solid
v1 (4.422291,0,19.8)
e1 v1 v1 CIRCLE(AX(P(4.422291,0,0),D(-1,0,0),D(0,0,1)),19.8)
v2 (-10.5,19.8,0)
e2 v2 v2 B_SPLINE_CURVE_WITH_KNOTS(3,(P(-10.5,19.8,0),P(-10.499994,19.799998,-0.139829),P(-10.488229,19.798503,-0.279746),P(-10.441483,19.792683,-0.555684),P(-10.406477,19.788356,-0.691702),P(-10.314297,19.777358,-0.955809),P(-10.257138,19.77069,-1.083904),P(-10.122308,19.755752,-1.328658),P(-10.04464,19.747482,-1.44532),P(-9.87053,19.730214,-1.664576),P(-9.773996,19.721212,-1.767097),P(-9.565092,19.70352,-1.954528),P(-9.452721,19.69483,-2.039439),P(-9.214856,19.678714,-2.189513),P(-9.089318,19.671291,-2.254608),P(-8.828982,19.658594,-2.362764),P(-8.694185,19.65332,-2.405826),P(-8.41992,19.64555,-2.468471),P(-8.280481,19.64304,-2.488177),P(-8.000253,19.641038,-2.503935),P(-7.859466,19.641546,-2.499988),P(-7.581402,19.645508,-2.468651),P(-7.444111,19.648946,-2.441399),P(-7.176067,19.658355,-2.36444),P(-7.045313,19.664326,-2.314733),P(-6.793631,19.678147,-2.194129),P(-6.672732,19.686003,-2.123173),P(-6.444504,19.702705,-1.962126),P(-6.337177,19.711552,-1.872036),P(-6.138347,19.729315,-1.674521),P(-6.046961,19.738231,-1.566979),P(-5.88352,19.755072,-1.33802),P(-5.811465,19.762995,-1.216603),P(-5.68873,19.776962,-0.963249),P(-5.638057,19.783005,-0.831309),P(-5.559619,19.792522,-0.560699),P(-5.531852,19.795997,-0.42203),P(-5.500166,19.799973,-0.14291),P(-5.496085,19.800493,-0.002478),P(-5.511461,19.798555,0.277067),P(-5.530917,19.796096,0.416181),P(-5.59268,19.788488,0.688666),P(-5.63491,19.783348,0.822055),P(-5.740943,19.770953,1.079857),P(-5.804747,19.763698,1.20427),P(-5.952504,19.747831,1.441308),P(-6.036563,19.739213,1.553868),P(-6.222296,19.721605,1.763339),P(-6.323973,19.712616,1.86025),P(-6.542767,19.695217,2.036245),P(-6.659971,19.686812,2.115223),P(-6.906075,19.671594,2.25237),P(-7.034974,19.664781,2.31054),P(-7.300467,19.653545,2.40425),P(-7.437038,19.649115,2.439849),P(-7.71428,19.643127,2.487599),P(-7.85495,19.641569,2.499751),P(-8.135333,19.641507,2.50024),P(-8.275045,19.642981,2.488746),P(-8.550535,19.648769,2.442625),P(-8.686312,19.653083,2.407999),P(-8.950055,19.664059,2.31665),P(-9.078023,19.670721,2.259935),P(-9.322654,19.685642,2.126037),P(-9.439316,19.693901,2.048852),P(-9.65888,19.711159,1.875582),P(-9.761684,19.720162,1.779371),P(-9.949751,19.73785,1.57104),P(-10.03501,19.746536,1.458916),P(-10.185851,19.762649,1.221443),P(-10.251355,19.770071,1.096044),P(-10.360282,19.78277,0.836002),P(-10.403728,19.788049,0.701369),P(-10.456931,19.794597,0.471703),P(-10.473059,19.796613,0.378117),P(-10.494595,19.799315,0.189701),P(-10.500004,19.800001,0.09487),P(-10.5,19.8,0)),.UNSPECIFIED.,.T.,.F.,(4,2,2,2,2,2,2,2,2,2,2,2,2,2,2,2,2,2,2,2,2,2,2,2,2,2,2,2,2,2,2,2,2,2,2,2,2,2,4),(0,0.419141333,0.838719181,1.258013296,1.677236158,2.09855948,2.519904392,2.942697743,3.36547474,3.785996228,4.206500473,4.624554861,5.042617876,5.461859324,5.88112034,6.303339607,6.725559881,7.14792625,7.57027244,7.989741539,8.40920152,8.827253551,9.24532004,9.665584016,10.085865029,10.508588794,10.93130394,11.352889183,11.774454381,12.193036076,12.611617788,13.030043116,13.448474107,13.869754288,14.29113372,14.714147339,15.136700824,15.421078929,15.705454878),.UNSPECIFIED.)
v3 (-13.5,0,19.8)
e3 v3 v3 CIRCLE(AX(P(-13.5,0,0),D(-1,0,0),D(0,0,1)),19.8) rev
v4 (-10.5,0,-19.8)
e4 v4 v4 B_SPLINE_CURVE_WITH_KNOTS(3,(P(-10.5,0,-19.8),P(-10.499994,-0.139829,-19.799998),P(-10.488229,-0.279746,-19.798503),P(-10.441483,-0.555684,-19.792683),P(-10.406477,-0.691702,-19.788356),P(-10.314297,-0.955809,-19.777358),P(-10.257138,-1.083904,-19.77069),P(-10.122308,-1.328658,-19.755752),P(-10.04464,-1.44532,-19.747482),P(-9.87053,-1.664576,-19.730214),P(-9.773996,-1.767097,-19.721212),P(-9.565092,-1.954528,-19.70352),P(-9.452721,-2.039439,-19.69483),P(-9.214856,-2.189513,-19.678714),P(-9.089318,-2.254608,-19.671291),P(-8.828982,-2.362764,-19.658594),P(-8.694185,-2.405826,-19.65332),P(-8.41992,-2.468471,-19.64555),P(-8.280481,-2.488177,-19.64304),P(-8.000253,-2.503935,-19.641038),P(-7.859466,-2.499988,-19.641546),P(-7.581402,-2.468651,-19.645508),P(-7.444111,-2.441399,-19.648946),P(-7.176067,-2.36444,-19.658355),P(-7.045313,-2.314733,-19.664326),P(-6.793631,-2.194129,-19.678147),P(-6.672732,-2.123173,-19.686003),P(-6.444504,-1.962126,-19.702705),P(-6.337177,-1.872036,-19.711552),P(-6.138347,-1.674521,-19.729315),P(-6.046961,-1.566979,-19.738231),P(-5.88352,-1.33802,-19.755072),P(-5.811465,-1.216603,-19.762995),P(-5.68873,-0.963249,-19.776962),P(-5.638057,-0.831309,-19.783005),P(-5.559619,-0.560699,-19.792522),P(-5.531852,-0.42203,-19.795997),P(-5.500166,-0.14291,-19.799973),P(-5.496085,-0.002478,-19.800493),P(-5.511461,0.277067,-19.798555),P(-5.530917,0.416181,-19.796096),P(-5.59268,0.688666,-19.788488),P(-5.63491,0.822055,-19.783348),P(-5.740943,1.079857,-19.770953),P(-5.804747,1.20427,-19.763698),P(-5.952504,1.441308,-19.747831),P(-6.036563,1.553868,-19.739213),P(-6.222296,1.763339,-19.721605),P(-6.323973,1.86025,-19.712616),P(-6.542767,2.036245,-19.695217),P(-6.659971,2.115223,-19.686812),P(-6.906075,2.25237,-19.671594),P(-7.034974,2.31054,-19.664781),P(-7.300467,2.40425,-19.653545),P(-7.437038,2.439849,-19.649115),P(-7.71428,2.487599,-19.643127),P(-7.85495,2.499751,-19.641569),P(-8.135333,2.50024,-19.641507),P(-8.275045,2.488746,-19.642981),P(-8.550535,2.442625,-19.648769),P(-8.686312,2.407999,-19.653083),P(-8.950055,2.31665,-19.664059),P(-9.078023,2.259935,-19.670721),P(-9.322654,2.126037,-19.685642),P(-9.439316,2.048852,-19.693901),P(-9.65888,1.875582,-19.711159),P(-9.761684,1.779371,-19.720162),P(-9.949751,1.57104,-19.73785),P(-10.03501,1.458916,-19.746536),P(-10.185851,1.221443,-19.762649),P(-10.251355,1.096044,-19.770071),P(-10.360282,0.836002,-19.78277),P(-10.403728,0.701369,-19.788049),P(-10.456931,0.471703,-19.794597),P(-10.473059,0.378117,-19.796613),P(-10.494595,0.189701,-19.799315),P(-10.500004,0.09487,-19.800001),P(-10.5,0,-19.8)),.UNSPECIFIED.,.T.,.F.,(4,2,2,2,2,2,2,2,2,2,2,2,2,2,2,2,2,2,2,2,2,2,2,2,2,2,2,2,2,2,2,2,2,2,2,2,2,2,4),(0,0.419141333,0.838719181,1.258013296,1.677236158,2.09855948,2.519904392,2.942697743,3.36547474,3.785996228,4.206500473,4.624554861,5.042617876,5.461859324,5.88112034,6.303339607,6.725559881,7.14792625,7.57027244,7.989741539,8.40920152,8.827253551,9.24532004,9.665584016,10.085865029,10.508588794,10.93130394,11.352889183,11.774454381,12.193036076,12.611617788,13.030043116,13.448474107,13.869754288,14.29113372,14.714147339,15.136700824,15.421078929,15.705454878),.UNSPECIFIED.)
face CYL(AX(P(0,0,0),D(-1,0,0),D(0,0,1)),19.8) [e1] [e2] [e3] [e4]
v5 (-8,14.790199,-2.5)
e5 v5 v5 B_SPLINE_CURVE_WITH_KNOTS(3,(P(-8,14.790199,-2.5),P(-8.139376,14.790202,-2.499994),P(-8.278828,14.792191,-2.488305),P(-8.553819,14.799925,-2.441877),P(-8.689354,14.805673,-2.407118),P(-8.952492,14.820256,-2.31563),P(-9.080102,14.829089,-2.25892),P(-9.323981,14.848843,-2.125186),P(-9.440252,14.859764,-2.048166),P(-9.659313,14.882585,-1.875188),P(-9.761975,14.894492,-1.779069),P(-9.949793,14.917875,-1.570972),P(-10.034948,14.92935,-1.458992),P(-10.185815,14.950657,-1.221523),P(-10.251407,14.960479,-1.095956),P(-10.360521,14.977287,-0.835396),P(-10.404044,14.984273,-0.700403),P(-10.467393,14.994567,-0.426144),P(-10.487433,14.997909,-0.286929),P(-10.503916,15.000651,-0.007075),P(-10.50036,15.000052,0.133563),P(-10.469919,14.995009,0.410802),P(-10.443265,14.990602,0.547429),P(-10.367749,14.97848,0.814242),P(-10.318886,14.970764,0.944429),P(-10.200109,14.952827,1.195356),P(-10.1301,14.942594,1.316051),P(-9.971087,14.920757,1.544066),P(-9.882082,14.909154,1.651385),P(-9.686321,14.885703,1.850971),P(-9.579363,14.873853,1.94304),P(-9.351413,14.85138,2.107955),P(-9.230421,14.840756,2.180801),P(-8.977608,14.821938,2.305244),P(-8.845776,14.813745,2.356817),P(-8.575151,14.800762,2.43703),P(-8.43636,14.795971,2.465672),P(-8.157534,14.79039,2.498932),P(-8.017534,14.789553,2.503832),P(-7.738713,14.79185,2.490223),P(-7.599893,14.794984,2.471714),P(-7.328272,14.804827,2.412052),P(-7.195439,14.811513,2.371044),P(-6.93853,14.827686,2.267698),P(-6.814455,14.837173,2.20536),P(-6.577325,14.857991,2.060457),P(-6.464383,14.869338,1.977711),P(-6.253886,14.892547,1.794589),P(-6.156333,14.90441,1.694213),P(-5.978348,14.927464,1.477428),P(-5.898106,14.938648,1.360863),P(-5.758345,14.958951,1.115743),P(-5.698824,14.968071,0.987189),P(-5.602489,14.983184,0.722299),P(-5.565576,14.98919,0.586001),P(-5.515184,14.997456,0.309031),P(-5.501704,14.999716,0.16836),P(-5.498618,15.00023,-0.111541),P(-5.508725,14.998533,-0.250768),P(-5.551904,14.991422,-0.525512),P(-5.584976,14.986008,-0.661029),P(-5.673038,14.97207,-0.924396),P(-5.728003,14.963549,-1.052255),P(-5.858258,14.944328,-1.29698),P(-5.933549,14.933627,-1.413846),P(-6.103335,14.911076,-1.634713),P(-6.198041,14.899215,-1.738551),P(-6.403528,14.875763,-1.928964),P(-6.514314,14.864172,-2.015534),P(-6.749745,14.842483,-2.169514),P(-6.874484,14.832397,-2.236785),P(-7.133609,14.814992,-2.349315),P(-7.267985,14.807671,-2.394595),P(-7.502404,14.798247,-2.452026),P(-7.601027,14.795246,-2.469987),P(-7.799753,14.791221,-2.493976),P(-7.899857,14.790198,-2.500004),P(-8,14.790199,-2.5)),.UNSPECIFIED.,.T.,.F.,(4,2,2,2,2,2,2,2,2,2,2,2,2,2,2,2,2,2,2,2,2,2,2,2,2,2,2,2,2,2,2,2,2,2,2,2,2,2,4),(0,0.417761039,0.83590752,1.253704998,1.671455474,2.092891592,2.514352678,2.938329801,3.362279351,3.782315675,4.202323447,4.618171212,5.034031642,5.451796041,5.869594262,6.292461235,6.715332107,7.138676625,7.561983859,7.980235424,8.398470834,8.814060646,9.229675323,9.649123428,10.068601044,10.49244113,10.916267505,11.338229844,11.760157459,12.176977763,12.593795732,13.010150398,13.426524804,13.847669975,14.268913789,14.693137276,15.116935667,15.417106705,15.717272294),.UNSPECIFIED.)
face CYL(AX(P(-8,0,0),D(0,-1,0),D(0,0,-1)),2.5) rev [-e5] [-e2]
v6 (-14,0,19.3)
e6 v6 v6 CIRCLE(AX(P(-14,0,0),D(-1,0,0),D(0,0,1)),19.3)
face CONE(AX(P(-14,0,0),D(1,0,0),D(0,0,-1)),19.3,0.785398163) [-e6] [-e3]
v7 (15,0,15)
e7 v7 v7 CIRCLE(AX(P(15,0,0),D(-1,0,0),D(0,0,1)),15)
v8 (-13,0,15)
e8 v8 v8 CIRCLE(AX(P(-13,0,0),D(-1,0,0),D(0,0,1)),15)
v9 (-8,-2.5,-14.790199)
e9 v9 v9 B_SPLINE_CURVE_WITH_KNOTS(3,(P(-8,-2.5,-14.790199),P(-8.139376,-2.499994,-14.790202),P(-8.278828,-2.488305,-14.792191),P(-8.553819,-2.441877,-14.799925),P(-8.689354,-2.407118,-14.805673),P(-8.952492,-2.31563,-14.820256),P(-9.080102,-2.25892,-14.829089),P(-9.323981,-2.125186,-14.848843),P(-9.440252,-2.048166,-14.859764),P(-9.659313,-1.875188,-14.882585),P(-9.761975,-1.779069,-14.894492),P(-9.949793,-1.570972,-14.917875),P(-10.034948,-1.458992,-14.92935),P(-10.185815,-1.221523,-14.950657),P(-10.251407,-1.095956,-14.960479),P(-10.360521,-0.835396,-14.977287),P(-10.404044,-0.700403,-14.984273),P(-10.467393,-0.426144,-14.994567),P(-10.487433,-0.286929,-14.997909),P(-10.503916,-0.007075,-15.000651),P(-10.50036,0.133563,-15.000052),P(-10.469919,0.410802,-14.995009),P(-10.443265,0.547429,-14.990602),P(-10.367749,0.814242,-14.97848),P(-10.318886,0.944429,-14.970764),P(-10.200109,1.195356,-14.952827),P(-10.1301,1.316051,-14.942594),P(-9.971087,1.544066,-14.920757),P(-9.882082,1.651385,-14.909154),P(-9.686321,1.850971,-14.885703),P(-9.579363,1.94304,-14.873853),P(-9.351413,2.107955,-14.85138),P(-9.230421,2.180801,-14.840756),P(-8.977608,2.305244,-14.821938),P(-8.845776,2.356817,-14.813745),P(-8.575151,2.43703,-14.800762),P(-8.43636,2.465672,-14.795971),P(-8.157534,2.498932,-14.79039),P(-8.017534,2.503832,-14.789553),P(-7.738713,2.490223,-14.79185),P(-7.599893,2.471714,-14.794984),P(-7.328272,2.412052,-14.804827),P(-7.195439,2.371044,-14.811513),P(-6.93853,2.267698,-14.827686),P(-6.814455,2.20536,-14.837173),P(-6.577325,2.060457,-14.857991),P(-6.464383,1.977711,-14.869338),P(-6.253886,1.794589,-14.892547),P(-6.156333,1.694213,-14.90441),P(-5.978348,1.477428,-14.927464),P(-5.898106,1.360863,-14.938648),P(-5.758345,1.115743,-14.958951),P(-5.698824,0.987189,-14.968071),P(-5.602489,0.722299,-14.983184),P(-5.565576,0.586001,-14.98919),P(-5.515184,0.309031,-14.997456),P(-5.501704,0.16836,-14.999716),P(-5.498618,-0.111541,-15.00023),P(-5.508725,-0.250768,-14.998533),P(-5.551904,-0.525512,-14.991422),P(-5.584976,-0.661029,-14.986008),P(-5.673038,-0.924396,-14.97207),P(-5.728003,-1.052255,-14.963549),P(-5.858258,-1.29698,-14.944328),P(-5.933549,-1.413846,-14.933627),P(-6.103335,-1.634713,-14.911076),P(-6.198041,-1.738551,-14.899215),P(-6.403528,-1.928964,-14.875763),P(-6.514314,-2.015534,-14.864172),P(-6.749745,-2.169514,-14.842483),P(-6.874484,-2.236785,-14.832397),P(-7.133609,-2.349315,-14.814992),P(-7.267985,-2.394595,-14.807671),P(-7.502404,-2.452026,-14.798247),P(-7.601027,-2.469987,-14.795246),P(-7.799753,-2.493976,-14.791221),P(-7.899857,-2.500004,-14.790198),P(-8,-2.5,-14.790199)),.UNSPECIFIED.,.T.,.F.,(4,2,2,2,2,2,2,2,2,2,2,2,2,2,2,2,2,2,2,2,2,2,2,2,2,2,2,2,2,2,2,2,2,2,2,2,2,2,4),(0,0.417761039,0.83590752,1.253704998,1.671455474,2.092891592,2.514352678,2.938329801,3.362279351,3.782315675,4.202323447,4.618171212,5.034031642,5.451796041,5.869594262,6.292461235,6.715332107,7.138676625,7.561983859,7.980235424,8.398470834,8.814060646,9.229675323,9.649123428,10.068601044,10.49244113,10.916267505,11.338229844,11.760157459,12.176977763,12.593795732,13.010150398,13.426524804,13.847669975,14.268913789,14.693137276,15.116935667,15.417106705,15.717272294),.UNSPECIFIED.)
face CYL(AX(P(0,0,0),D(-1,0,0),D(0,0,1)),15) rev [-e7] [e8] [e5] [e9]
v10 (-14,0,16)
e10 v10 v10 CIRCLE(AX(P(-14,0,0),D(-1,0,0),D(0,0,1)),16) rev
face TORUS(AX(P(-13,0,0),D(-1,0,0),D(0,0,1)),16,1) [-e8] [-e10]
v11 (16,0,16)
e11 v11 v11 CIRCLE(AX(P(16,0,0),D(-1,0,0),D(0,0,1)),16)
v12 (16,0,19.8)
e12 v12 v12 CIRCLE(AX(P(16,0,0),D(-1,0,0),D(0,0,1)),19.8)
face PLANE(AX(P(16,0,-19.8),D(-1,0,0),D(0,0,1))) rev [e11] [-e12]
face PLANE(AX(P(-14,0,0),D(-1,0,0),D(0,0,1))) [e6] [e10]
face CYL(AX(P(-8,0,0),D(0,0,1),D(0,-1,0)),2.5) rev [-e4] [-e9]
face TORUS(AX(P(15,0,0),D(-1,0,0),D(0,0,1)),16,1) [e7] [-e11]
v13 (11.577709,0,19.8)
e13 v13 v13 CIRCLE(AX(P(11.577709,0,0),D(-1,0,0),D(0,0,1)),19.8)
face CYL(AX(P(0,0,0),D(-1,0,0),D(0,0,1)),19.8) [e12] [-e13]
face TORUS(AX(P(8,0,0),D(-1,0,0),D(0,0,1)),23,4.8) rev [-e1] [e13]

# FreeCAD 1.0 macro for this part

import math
import FreeCAD as App
import Part
import Sketcher
from FreeCAD import Vector
Q = App.Units.Quantity


def edges_at(feature, points):
    """Names of the edges that pass closest to the given points."""
    edges = feature.Shape.Edges
    near = lambda p: min(range(len(edges)), key=lambda i: edges[i].distToShape(Part.Vertex(*p))[0])
    return sorted({f"Edge{near(p) + 1}" for p in points})


def add_polygon(sketch, points):
    """Adds a closed chain of lines whose ends are joined by coincident constraints."""
    first, n = sketch.GeometryCount, len(points)
    for a, b in zip(points, points[1:] + points[:1]):
        sketch.addGeometry(Part.LineSegment(App.Vector(*a, 0), App.Vector(*b, 0)), False)
    for i in range(n):
        sketch.addConstraint(Sketcher.Constraint("Coincident", first + i, 2, first + (i + 1) % n, 1))

doc = App.newDocument("Part")
body = doc.addObject("PartDesign::Body", "Body")

sketch1 = doc.addObject("Sketcher::SketchObject", "Sketch")
body.addObject(sketch1)
sketch1.AttachmentSupport = (doc.XZ_Plane, [""])
sketch1.MapMode = "FlatFace"
sketch1.addGeometry([
    Part.LineSegment(Vector(0, -19.8, 0), Vector(0, -16, 0)),
    Part.ArcOfCircle(Part.Circle(Vector(1, -16, 0), Vector(0, 0, 1), 1), math.radians(90), math.radians(180)),
    Part.LineSegment(Vector(1, -15, 0), Vector(15, -15, 0)),
    Part.ArcOfCircle(Part.Circle(Vector(15, -16, 0), Vector(0, 0, 1), 1), math.radians(0), math.radians(90)),
    Part.LineSegment(Vector(16, -16, 0), Vector(16, -19.8, 0)),
    Part.LineSegment(Vector(16, -19.8, 0), Vector(11.6, -19.8, 0)),
    Part.ArcOfCircle(Part.Circle(Vector(8, -23, 0), Vector(0, 0, 1), 4.8), math.radians(42), math.radians(138)),
    Part.LineSegment(Vector(4.4, -19.8, 0), Vector(0, -19.8, 0)),
], False)
sketch1.addConstraint([
    Sketcher.Constraint("Tangent", 0, 2, 1, 2),
    Sketcher.Constraint("Tangent", 1, 1, 2, 1),
    Sketcher.Constraint("Tangent", 2, 2, 3, 2),
    Sketcher.Constraint("Tangent", 3, 1, 4, 1),
    Sketcher.Constraint("Coincident", 4, 2, 5, 1),
    Sketcher.Constraint("Coincident", 5, 2, 6, 1),
    Sketcher.Constraint("Coincident", 6, 2, 7, 1),
    Sketcher.Constraint("Coincident", 7, 2, 0, 1),
    Sketcher.Constraint("Vertical", 0),
    Sketcher.Constraint("Horizontal", 2),
    Sketcher.Constraint("Vertical", 4),
    Sketcher.Constraint("Horizontal", 5),
    Sketcher.Constraint("Horizontal", 7),
    Sketcher.Constraint("Equal", 1, 3),
    Sketcher.Constraint("PointOnObject", 0, 2, -2),
    Sketcher.Constraint("Horizontal", 5, 2, 6, 2),
    Sketcher.Constraint("Equal", 5, 7),
    Sketcher.Constraint("Radius", 1, Q("1 mm")),
    Sketcher.Constraint("Radius", 6, Q("4.8 mm")),
    Sketcher.Constraint("DistanceX", 2, 1, 2, 2, Q("14 mm")),
    Sketcher.Constraint("DistanceY", 0, 1, 0, 2, Q("3.8 mm")),
    Sketcher.Constraint("DistanceY", 1, 3, -1, 1, Q("16 mm")),
    Sketcher.Constraint("DistanceY", 6, 3, -1, 1, Q("23 mm")),
])
revolution = doc.addObject("PartDesign::Revolution", "Revolution")
body.addObject(revolution)
revolution.Profile = sketch1
revolution.ReferenceAxis = (sketch1, ["H_Axis"])
revolution.Angle = 360

sketch2 = doc.addObject("Sketcher::SketchObject", "Sketch001")
body.addObject(sketch2)
sketch2.AttachmentSupport = (doc.YZ_Plane, [""])
sketch2.MapMode = "FlatFace"
sketch2.addGeometry([
    Part.Circle(Vector(0, 0, 0), Vector(0, 0, 1), 20),
    Part.Circle(Vector(0, 0, 0), Vector(0, 0, 1), 15),
], False)
sketch2.addConstraint([
    Sketcher.Constraint("Coincident", 0, 3, -1, 1),
    Sketcher.Constraint("Coincident", 1, 3, -1, 1),
    Sketcher.Constraint("Diameter", 1, Q("30 mm")),
    Sketcher.Constraint("Diameter", 0, Q("39.6 mm")),
])
pad1 = doc.addObject("PartDesign::Pad", "Pad")
body.addObject(pad1)
pad1.Profile = sketch2
pad1.Type = "TwoLengths"
pad1.Length = 14
pad1.Length2 = 2
pad1.Reversed = True
doc.recompute()

fillet = doc.addObject("PartDesign::Fillet", "Fillet")
body.addObject(fillet)
fillet.Base = (pad1, edges_at(pad1, [(-14, 0, -15)]))
fillet.Radius = 1
doc.recompute()

chamfer = doc.addObject("PartDesign::Chamfer", "Chamfer")
body.addObject(chamfer)
chamfer.Base = (fillet, edges_at(fillet, [(-14, 0, -19.8)]))
chamfer.Size = 0.5

sketch3 = doc.addObject("Sketcher::SketchObject", "Sketch002")
body.addObject(sketch3)
sketch3.AttachmentSupport = (doc.YZ_Plane, [""])
sketch3.MapMode = "FlatFace"
sketch3.AttachmentOffset = App.Placement(Vector(0, 0, -8), App.Rotation())
add_polygon(sketch3, [(19.8, 0), (0, 0), (0, -2.5), (19.8, -2.5)])
sketch3.addConstraint([
    Sketcher.Constraint("Horizontal", 0),
    Sketcher.Constraint("Vertical", 1),
    Sketcher.Constraint("Horizontal", 2),
    Sketcher.Constraint("Vertical", 3),
    Sketcher.Constraint("Coincident", 0, 2, -1, 1),
    Sketcher.Constraint("DistanceX", 0, 2, 0, 1, Q("19.8 mm")),
    Sketcher.Constraint("DistanceY", 1, 2, 1, 1, Q("2.5 mm")),
])
groove = doc.addObject("PartDesign::Groove", "Groove")
body.addObject(groove)
groove.Profile = sketch3
groove.ReferenceAxis = (sketch3, ["H_Axis"])
groove.Angle = 360
doc.recompute()

polarpattern = doc.addObject("PartDesign::PolarPattern", "PolarPattern")
body.addObject(polarpattern)
polarpattern.Originals = [groove]
polarpattern.Axis = (doc.X_Axis, [""])
polarpattern.Angle = 90
polarpattern.Occurrences = 2
polarpattern.Reversed = True
body.Tip = polarpattern

doc.recompute()
